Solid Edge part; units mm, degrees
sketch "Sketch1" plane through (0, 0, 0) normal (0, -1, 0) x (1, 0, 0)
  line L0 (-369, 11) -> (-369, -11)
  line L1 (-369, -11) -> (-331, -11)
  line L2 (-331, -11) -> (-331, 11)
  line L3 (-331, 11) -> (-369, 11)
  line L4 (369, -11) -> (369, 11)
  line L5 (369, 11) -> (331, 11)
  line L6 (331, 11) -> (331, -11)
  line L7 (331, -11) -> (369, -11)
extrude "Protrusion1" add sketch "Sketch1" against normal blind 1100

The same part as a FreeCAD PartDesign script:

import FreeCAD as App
import Part
import Sketcher
from FreeCAD import Vector
Q = App.Units.Quantity


def add_polygon(sketch, points):
    """Adds a closed chain of lines whose ends are joined by coincident constraints."""
    first, n = sketch.GeometryCount, len(points)
    for a, b in zip(points, points[1:] + points[:1]):
        sketch.addGeometry(Part.LineSegment(App.Vector(*a, 0), App.Vector(*b, 0)), False)
    for i in range(n):
        sketch.addConstraint(Sketcher.Constraint("Coincident", first + i, 2, first + (i + 1) % n, 1))

doc = App.newDocument("Part")
body = doc.addObject("PartDesign::Body", "Body")
body.AllowCompound = True

sketch1 = body.newObject("Sketcher::SketchObject", "Sketch")
sketch1.AttachmentSupport = (doc.getObject("XZ_Plane"), [""])
sketch1.MapMode = "FlatFace"
add_polygon(sketch1, [(-331, 11), (-369, 11), (-369, -11), (-331, -11)])
add_polygon(sketch1, [(331, -11), (369, -11), (369, 11), (331, 11)])
sketch1.addConstraint([
    Sketcher.Constraint("Horizontal", 0),
    Sketcher.Constraint("Vertical", 1),
    Sketcher.Constraint("Horizontal", 2),
    Sketcher.Constraint("Vertical", 3),
    Sketcher.Constraint("Horizontal", 4),
    Sketcher.Constraint("Vertical", 5),
    Sketcher.Constraint("Horizontal", 6),
    Sketcher.Constraint("Vertical", 7),
    Sketcher.Constraint("Symmetric", 0, 2, 4, 2, -1, 1),
    Sketcher.Constraint("Symmetric", 2, 2, 6, 2, -1, 1),
    Sketcher.Constraint("Horizontal", 2, 2, 4, 2),
    Sketcher.Constraint("DistanceX", 0, 2, 0, 1, Q("38 mm")),
    Sketcher.Constraint("DistanceY", 1, 2, 1, 1, Q("22 mm")),
    Sketcher.Constraint("DistanceX", 0, 2, -1, 1, Q("369 mm")),
])
pad1 = body.newObject("PartDesign::Pad", "Pad")
pad1.Profile = sketch1
pad1.Length = 1100
pad1.Reversed = True

doc.recompute()
